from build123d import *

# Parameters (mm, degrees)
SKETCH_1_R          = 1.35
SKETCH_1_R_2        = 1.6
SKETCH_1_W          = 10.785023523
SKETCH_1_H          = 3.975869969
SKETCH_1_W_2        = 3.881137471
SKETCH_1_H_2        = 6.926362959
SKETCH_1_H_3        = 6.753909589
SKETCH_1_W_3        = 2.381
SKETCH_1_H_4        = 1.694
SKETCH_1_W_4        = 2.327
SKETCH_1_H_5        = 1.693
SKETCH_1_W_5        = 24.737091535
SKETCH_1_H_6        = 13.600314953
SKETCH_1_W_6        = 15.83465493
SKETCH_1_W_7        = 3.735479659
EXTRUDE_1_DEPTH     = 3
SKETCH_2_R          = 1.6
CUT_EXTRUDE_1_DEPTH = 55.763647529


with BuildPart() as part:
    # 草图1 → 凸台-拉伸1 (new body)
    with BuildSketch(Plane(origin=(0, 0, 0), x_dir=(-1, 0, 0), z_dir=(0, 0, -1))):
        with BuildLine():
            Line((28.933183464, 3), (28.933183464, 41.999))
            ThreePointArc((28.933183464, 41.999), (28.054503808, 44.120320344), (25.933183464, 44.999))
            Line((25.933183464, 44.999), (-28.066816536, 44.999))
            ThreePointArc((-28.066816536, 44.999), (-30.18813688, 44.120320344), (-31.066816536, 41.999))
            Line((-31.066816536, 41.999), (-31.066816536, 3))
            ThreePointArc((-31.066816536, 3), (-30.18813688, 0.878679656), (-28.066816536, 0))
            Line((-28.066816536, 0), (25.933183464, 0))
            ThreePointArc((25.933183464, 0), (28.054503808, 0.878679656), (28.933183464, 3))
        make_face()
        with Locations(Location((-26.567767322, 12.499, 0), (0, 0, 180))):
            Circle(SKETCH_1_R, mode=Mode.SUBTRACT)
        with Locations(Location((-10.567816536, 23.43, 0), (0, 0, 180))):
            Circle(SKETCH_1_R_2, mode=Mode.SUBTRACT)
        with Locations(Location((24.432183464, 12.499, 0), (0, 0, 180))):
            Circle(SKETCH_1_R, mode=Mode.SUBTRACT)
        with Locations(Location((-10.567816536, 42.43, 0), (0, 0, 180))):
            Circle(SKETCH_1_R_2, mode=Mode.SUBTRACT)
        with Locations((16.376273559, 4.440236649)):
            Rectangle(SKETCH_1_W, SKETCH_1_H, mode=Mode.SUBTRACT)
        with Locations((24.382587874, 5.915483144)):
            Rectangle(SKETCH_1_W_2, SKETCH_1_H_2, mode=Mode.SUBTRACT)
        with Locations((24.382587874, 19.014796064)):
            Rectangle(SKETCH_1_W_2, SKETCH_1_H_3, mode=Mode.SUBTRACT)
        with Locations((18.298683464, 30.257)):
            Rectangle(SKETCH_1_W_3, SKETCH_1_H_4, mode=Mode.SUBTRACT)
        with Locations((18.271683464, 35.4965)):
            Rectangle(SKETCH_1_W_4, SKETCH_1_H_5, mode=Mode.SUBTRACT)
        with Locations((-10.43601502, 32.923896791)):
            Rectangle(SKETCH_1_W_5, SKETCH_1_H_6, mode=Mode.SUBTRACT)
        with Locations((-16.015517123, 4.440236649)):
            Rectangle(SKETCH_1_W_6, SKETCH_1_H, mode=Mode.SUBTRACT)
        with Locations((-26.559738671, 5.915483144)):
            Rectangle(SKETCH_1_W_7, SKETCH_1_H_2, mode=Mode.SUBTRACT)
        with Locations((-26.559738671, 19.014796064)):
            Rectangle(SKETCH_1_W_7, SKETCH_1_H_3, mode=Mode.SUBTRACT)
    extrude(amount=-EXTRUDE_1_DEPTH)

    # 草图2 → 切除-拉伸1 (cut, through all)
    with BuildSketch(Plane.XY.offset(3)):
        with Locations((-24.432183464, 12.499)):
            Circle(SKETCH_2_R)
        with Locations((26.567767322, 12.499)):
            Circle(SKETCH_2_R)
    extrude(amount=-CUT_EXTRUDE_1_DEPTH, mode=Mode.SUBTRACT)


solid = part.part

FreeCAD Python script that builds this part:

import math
import FreeCAD as App
import Part
import Sketcher

V = App.Vector
Q = App.Units.Quantity

doc = App.newDocument("Part")
body = doc.addObject("PartDesign::Body", "Body")

# Sketch on XY plane
sketch1 = doc.addObject("Sketcher::SketchObject", "Sketch")
body.addObject(sketch1)
sketch1.AttachmentSupport = (doc.XY_Plane, [""])
sketch1.MapMode = "FlatFace"
sketch1.addGeometry(Part.LineSegment(V(-28.933183, 3, 0), V(-28.933183, 41.999, 0)), False)
sketch1.addGeometry(Part.ArcOfCircle(Part.Circle(V(-25.933183, 41.999, 0), V(0, 0, 1), 3), math.radians(90), math.radians(180)), False)
sketch1.addGeometry(Part.LineSegment(V(-25.933183, 44.999, 0), V(28.066817, 44.999, 0)), False)
sketch1.addGeometry(Part.ArcOfCircle(Part.Circle(V(28.066817, 41.999, 0), V(0, 0, 1), 3), math.radians(0), math.radians(90)), False)
sketch1.addGeometry(Part.LineSegment(V(31.066817, 41.999, 0), V(31.066817, 3, 0)), False)
sketch1.addGeometry(Part.ArcOfCircle(Part.Circle(V(28.066817, 3, 0), V(0, 0, 1), 3), math.radians(-90), math.radians(0)), False)
sketch1.addGeometry(Part.LineSegment(V(28.066817, 0, 0), V(-25.933183, 0, 0)), False)
sketch1.addGeometry(Part.ArcOfCircle(Part.Circle(V(-25.933183, 3, 0), V(0, 0, 1), 3), math.radians(180), math.radians(270)), False)
sketch1.addGeometry(Part.LineSegment(V(24.691999, 2.452302, 0), V(28.427479, 2.452302, 0)), False)
sketch1.addGeometry(Part.LineSegment(V(28.427479, 2.452302, 0), V(28.427479, 9.378665, 0)), False)
sketch1.addGeometry(Part.LineSegment(V(28.427479, 9.378665, 0), V(24.691999, 9.378665, 0)), False)
sketch1.addGeometry(Part.LineSegment(V(24.691999, 9.378665, 0), V(24.691999, 2.452302, 0)), False)
sketch1.addGeometry(Part.LineSegment(V(8.09819, 2.452302, 0), V(23.932845, 2.452302, 0)), False)
sketch1.addGeometry(Part.LineSegment(V(23.932845, 2.452302, 0), V(23.932845, 6.428172, 0)), False)
sketch1.addGeometry(Part.LineSegment(V(23.932845, 6.428172, 0), V(8.09819, 6.428172, 0)), False)
sketch1.addGeometry(Part.LineSegment(V(8.09819, 6.428172, 0), V(8.09819, 2.452302, 0)), False)
sketch1.addGeometry(Part.Circle(V(26.567767, 12.499, 0), V(0, 0, 1), 1.35), False)
sketch1.addGeometry(Part.LineSegment(V(24.691999, 15.637841, 0), V(28.427479, 15.637841, 0)), False)
sketch1.addGeometry(Part.LineSegment(V(28.427479, 15.637841, 0), V(28.427479, 22.391751, 0)), False)
sketch1.addGeometry(Part.LineSegment(V(28.427479, 22.391751, 0), V(24.691999, 22.391751, 0)), False)
sketch1.addGeometry(Part.LineSegment(V(24.691999, 22.391751, 0), V(24.691999, 15.637841, 0)), False)
sketch1.addGeometry(Part.LineSegment(V(-21.768785, 2.452302, 0), V(-10.983762, 2.452302, 0)), False)
sketch1.addGeometry(Part.LineSegment(V(-10.983762, 2.452302, 0), V(-10.983762, 6.428172, 0)), False)
sketch1.addGeometry(Part.LineSegment(V(-10.983762, 6.428172, 0), V(-21.768785, 6.428172, 0)), False)
sketch1.addGeometry(Part.LineSegment(V(-21.768785, 6.428172, 0), V(-21.768785, 2.452302, 0)), False)
sketch1.addGeometry(Part.LineSegment(V(-26.323157, 2.452302, 0), V(-22.442019, 2.452302, 0)), False)
sketch1.addGeometry(Part.LineSegment(V(-22.442019, 2.452302, 0), V(-22.442019, 9.378665, 0)), False)
sketch1.addGeometry(Part.LineSegment(V(-22.442019, 9.378665, 0), V(-26.323157, 9.378665, 0)), False)
sketch1.addGeometry(Part.LineSegment(V(-26.323157, 9.378665, 0), V(-26.323157, 2.452302, 0)), False)
sketch1.addGeometry(Part.Circle(V(-24.432183, 12.499, 0), V(0, 0, 1), 1.35), False)
sketch1.addGeometry(Part.LineSegment(V(-26.323157, 15.637841, 0), V(-22.442019, 15.637841, 0)), False)
sketch1.addGeometry(Part.LineSegment(V(-22.442019, 15.637841, 0), V(-22.442019, 22.391751, 0)), False)
sketch1.addGeometry(Part.LineSegment(V(-22.442019, 22.391751, 0), V(-26.323157, 22.391751, 0)), False)
sketch1.addGeometry(Part.LineSegment(V(-26.323157, 22.391751, 0), V(-26.323157, 15.637841, 0)), False)
sketch1.addGeometry(Part.Circle(V(10.567817, 23.43, 0), V(0, 0, 1), 1.6), False)
sketch1.addGeometry(Part.LineSegment(V(-1.932531, 26.123739, 0), V(22.804561, 26.123739, 0)), False)
sketch1.addGeometry(Part.LineSegment(V(22.804561, 26.123739, 0), V(22.804561, 39.724054, 0)), False)
sketch1.addGeometry(Part.LineSegment(V(22.804561, 39.724054, 0), V(-1.932531, 39.724054, 0)), False)
sketch1.addGeometry(Part.LineSegment(V(-1.932531, 39.724054, 0), V(-1.932531, 26.123739, 0)), False)
sketch1.addGeometry(Part.Circle(V(10.567817, 42.43, 0), V(0, 0, 1), 1.6), False)
sketch1.addGeometry(Part.LineSegment(V(-19.489183, 29.41, 0), V(-17.108183, 29.41, 0)), False)
sketch1.addGeometry(Part.LineSegment(V(-17.108183, 29.41, 0), V(-17.108183, 31.104, 0)), False)
sketch1.addGeometry(Part.LineSegment(V(-17.108183, 31.104, 0), V(-19.489183, 31.104, 0)), False)
sketch1.addGeometry(Part.LineSegment(V(-19.489183, 31.104, 0), V(-19.489183, 29.41, 0)), False)
sketch1.addGeometry(Part.LineSegment(V(-19.435183, 34.65, 0), V(-17.108183, 34.65, 0)), False)
sketch1.addGeometry(Part.LineSegment(V(-17.108183, 34.65, 0), V(-17.108183, 36.343, 0)), False)
sketch1.addGeometry(Part.LineSegment(V(-17.108183, 36.343, 0), V(-19.435183, 36.343, 0)), False)
sketch1.addGeometry(Part.LineSegment(V(-19.435183, 36.343, 0), V(-19.435183, 34.65, 0)), False)
sketch1.addConstraint(Sketcher.Constraint("Tangent", 0, 2, 1, 2))
sketch1.addConstraint(Sketcher.Constraint("Tangent", 1, 1, 2, 1))
sketch1.addConstraint(Sketcher.Constraint("Tangent", 2, 2, 3, 2))
sketch1.addConstraint(Sketcher.Constraint("Tangent", 3, 1, 4, 1))
sketch1.addConstraint(Sketcher.Constraint("Tangent", 4, 2, 5, 2))
sketch1.addConstraint(Sketcher.Constraint("Tangent", 5, 1, 6, 1))
sketch1.addConstraint(Sketcher.Constraint("Tangent", 6, 2, 7, 2))
sketch1.addConstraint(Sketcher.Constraint("Tangent", 7, 1, 0, 1))
sketch1.addConstraint(Sketcher.Constraint("Coincident", 8, 2, 9, 1))
sketch1.addConstraint(Sketcher.Constraint("Coincident", 9, 2, 10, 1))
sketch1.addConstraint(Sketcher.Constraint("Coincident", 10, 2, 11, 1))
sketch1.addConstraint(Sketcher.Constraint("Coincident", 11, 2, 8, 1))
sketch1.addConstraint(Sketcher.Constraint("Coincident", 12, 2, 13, 1))
sketch1.addConstraint(Sketcher.Constraint("Coincident", 13, 2, 14, 1))
sketch1.addConstraint(Sketcher.Constraint("Coincident", 14, 2, 15, 1))
sketch1.addConstraint(Sketcher.Constraint("Coincident", 15, 2, 12, 1))
sketch1.addConstraint(Sketcher.Constraint("Coincident", 17, 2, 18, 1))
sketch1.addConstraint(Sketcher.Constraint("Coincident", 18, 2, 19, 1))
sketch1.addConstraint(Sketcher.Constraint("Coincident", 19, 2, 20, 1))
sketch1.addConstraint(Sketcher.Constraint("Coincident", 20, 2, 17, 1))
sketch1.addConstraint(Sketcher.Constraint("Coincident", 21, 2, 22, 1))
sketch1.addConstraint(Sketcher.Constraint("Coincident", 22, 2, 23, 1))
sketch1.addConstraint(Sketcher.Constraint("Coincident", 23, 2, 24, 1))
sketch1.addConstraint(Sketcher.Constraint("Coincident", 24, 2, 21, 1))
sketch1.addConstraint(Sketcher.Constraint("Coincident", 25, 2, 26, 1))
sketch1.addConstraint(Sketcher.Constraint("Coincident", 26, 2, 27, 1))
sketch1.addConstraint(Sketcher.Constraint("Coincident", 27, 2, 28, 1))
sketch1.addConstraint(Sketcher.Constraint("Coincident", 28, 2, 25, 1))
sketch1.addConstraint(Sketcher.Constraint("Coincident", 30, 2, 31, 1))
sketch1.addConstraint(Sketcher.Constraint("Coincident", 31, 2, 32, 1))
sketch1.addConstraint(Sketcher.Constraint("Coincident", 32, 2, 33, 1))
sketch1.addConstraint(Sketcher.Constraint("Coincident", 33, 2, 30, 1))
sketch1.addConstraint(Sketcher.Constraint("Coincident", 35, 2, 36, 1))
sketch1.addConstraint(Sketcher.Constraint("Coincident", 36, 2, 37, 1))
sketch1.addConstraint(Sketcher.Constraint("Coincident", 37, 2, 38, 1))
sketch1.addConstraint(Sketcher.Constraint("Coincident", 38, 2, 35, 1))
sketch1.addConstraint(Sketcher.Constraint("Coincident", 40, 2, 41, 1))
sketch1.addConstraint(Sketcher.Constraint("Coincident", 41, 2, 42, 1))
sketch1.addConstraint(Sketcher.Constraint("Coincident", 42, 2, 43, 1))
sketch1.addConstraint(Sketcher.Constraint("Coincident", 43, 2, 40, 1))
sketch1.addConstraint(Sketcher.Constraint("Coincident", 44, 2, 45, 1))
sketch1.addConstraint(Sketcher.Constraint("Coincident", 45, 2, 46, 1))
sketch1.addConstraint(Sketcher.Constraint("Coincident", 46, 2, 47, 1))
sketch1.addConstraint(Sketcher.Constraint("Coincident", 47, 2, 44, 1))
sketch1.addConstraint(Sketcher.Constraint("Vertical", 0))
sketch1.addConstraint(Sketcher.Constraint("Horizontal", 2))
sketch1.addConstraint(Sketcher.Constraint("Vertical", 4))
sketch1.addConstraint(Sketcher.Constraint("Horizontal", 6))
sketch1.addConstraint(Sketcher.Constraint("Horizontal", 8))
sketch1.addConstraint(Sketcher.Constraint("Vertical", 9))
sketch1.addConstraint(Sketcher.Constraint("Horizontal", 10))
sketch1.addConstraint(Sketcher.Constraint("Vertical", 11))
sketch1.addConstraint(Sketcher.Constraint("Horizontal", 12))
sketch1.addConstraint(Sketcher.Constraint("Vertical", 13))
sketch1.addConstraint(Sketcher.Constraint("Horizontal", 14))
sketch1.addConstraint(Sketcher.Constraint("Vertical", 15))
sketch1.addConstraint(Sketcher.Constraint("Horizontal", 17))
sketch1.addConstraint(Sketcher.Constraint("Vertical", 18))
sketch1.addConstraint(Sketcher.Constraint("Horizontal", 19))
sketch1.addConstraint(Sketcher.Constraint("Vertical", 20))
sketch1.addConstraint(Sketcher.Constraint("Horizontal", 21))
sketch1.addConstraint(Sketcher.Constraint("Vertical", 22))
sketch1.addConstraint(Sketcher.Constraint("Horizontal", 23))
sketch1.addConstraint(Sketcher.Constraint("Vertical", 24))
sketch1.addConstraint(Sketcher.Constraint("Horizontal", 25))
sketch1.addConstraint(Sketcher.Constraint("Vertical", 26))
sketch1.addConstraint(Sketcher.Constraint("Horizontal", 27))
sketch1.addConstraint(Sketcher.Constraint("Vertical", 28))
sketch1.addConstraint(Sketcher.Constraint("Horizontal", 30))
sketch1.addConstraint(Sketcher.Constraint("Vertical", 31))
sketch1.addConstraint(Sketcher.Constraint("Horizontal", 32))
sketch1.addConstraint(Sketcher.Constraint("Vertical", 33))
sketch1.addConstraint(Sketcher.Constraint("Horizontal", 35))
sketch1.addConstraint(Sketcher.Constraint("Vertical", 36))
sketch1.addConstraint(Sketcher.Constraint("Horizontal", 37))
sketch1.addConstraint(Sketcher.Constraint("Vertical", 38))
sketch1.addConstraint(Sketcher.Constraint("Horizontal", 40))
sketch1.addConstraint(Sketcher.Constraint("Vertical", 41))
sketch1.addConstraint(Sketcher.Constraint("Horizontal", 42))
sketch1.addConstraint(Sketcher.Constraint("Vertical", 43))
sketch1.addConstraint(Sketcher.Constraint("Horizontal", 44))
sketch1.addConstraint(Sketcher.Constraint("Vertical", 45))
sketch1.addConstraint(Sketcher.Constraint("Horizontal", 46))
sketch1.addConstraint(Sketcher.Constraint("Vertical", 47))
sketch1.addConstraint(Sketcher.Constraint("Equal", 1, 3))
sketch1.addConstraint(Sketcher.Constraint("Equal", 3, 5))
sketch1.addConstraint(Sketcher.Constraint("Equal", 5, 7))
sketch1.addConstraint(Sketcher.Constraint("Equal", 16, 29))
sketch1.addConstraint(Sketcher.Constraint("Equal", 34, 39))
sketch1.addConstraint(Sketcher.Constraint("PointOnObject", 5, 1, -1))
sketch1.addConstraint(Sketcher.Constraint("Horizontal", 16, 3, 29, 3))
sketch1.addConstraint(Sketcher.Constraint("Horizontal", 11, 2, 12, 2))
sketch1.addConstraint(Sketcher.Constraint("Horizontal", 15, 2, 21, 2))
sketch1.addConstraint(Sketcher.Constraint("Horizontal", 14, 2, 22, 2))
sketch1.addConstraint(Sketcher.Constraint("Horizontal", 24, 2, 25, 2))
sketch1.addConstraint(Sketcher.Constraint("Horizontal", 10, 2, 26, 2))
sketch1.addConstraint(Sketcher.Constraint("Horizontal", 20, 2, 30, 2))
sketch1.addConstraint(Sketcher.Constraint("Horizontal", 19, 2, 31, 2))
sketch1.addConstraint(Sketcher.Constraint("Vertical", 34, 3, 39, 3))
sketch1.addConstraint(Sketcher.Constraint("Vertical", 9, 2, 17, 2))
sketch1.addConstraint(Sketcher.Constraint("Vertical", 11, 2, 19, 2))
sketch1.addConstraint(Sketcher.Constraint("Vertical", 26, 2, 30, 2))
sketch1.addConstraint(Sketcher.Constraint("Vertical", 28, 2, 32, 2))
sketch1.addConstraint(Sketcher.Constraint("Vertical", 41, 2, 44, 2))
sketch1.addConstraint(Sketcher.Constraint("Radius", 1, Q("3 mm")))
sketch1.addConstraint(Sketcher.Constraint("Diameter", 16, Q("2.7 mm")))
sketch1.addConstraint(Sketcher.Constraint("Diameter", 34, Q("3.2 mm")))
sketch1.addConstraint(Sketcher.Constraint("DistanceX", 2, 1, 2, 2, Q("54 mm")))
sketch1.addConstraint(Sketcher.Constraint("DistanceX", 29, 3, 34, 3, Q("35 mm")))
sketch1.addConstraint(Sketcher.Constraint("DistanceY", 34, 3, 39, 3, Q("19 mm")))
sketch1.addConstraint(Sketcher.Constraint("DistanceY", 16, 3, 3, 3, Q("29.5 mm")))
sketch1.addConstraint(Sketcher.Constraint("DistanceX", 40, 1, 40, 2, Q("2.381 mm")))
sketch1.addConstraint(Sketcher.Constraint("DistanceX", 44, 1, 44, 2, Q("2.327 mm")))
sketch1.addConstraint(Sketcher.Constraint("DistanceY", 0, 1, 0, 2, Q("38.999 mm")))
sketch1.addConstraint(Sketcher.Constraint("DistanceY", 41, 1, 41, 2, Q("1.694 mm")))
sketch1.addConstraint(Sketcher.Constraint("DistanceY", 45, 1, 45, 2, Q("1.693 mm")))
sketch1.addConstraint(Sketcher.Constraint("DistanceY", -1, 1, 34, 3, Q("23.43 mm")))
sketch1.addConstraint(Sketcher.Constraint("DistanceY", -1, 1, 40, 2, Q("29.41 mm")))
sketch1.addConstraint(Sketcher.Constraint("DistanceY", -1, 1, 44, 2, Q("34.65 mm")))
sketch1.addConstraint(Sketcher.Constraint("DistanceX", -1, 1, 10, 2, Q("24.691999 mm")))
sketch1.addConstraint(Sketcher.Constraint("DistanceX", 7, 3, 29, 3, Q("1.501 mm")))
sketch1.addConstraint(Sketcher.Constraint("DistanceX", 1, 3, 40, 2, Q("8.825 mm")))
sketch1.addConstraint(Sketcher.Constraint("DistanceX", 8, 1, 8, 2, Q("3.73548 mm")))
sketch1.addConstraint(Sketcher.Constraint("DistanceX", 35, 1, 35, 2, Q("24.737092 mm")))
sketch1.addConstraint(Sketcher.Constraint("DistanceY", 13, 1, 13, 2, Q("3.97587 mm")))
sketch1.addConstraint(Sketcher.Constraint("DistanceY", 18, 1, 18, 2, Q("6.75391 mm")))
sketch1.addConstraint(Sketcher.Constraint("DistanceY", -1, 1, 8, 2, Q("2.452302 mm")))
sketch1.addConstraint(Sketcher.Constraint("DistanceX", 7, 3, 23, 2, Q("4.164398 mm")))
sketch1.addConstraint(Sketcher.Constraint("DistanceY", 20, 2, 35, 2, Q("10.485898 mm")))
sketch1.addConstraint(Sketcher.Constraint("DistanceX", 12, 1, 12, 2, Q("15.834655 mm")))
sketch1.addConstraint(Sketcher.Constraint("DistanceX", 21, 1, 21, 2, Q("10.785024 mm")))
sketch1.addConstraint(Sketcher.Constraint("DistanceX", 25, 1, 25, 2, Q("3.881137 mm")))
sketch1.addConstraint(Sketcher.Constraint("DistanceY", 9, 1, 9, 2, Q("6.926363 mm")))
sketch1.addConstraint(Sketcher.Constraint("DistanceY", 36, 1, 36, 2, Q("13.600315 mm")))
sketch1.addConstraint(Sketcher.Constraint("DistanceX", -1, 1, 14, 2, Q("8.09819 mm")))
sketch1.addConstraint(Sketcher.Constraint("DistanceY", -1, 1, 17, 2, Q("15.637841 mm")))
sketch1.addConstraint(Sketcher.Constraint("DistanceX", 21, 2, -1, 1, Q("10.983762 mm")))
sketch1.addConstraint(Sketcher.Constraint("DistanceX", 25, 2, -1, 1, Q("22.442019 mm")))
sketch1.addConstraint(Sketcher.Constraint("DistanceX", -1, 1, 35, 2, Q("22.804561 mm")))
sketch1.addConstraint(Sketcher.Constraint("DistanceX", 16, 3, 5, 3, Q("1.499049 mm")))
pad1 = doc.addObject("PartDesign::Pad", "Pad")
body.addObject(pad1)
pad1.Profile = sketch1
pad1.Length = 3

# Sketch on XY plane
sketch2 = doc.addObject("Sketcher::SketchObject", "Sketch001")
body.addObject(sketch2)
sketch2.AttachmentSupport = (doc.XY_Plane, [""])
sketch2.MapMode = "FlatFace"
sketch2.AttachmentOffset = App.Placement(V(0, 0, 3), App.Rotation())
sketch2.addGeometry(Part.Circle(V(-24.432183, 12.499, 0), V(0, 0, 1), 1.6), False)
sketch2.addGeometry(Part.Circle(V(26.567767, 12.499, 0), V(0, 0, 1), 1.6), False)
sketch2.addConstraint(Sketcher.Constraint("Equal", 0, 1))
sketch2.addConstraint(Sketcher.Constraint("Horizontal", 0, 3, 1, 3))
sketch2.addConstraint(Sketcher.Constraint("Diameter", 0, Q("3.2 mm")))
sketch2.addConstraint(Sketcher.Constraint("DistanceY", -1, 1, 0, 3, Q("12.499 mm")))
sketch2.addConstraint(Sketcher.Constraint("DistanceX", 0, 3, 1, 3, Q("50.999951 mm")))
sketch2.addConstraint(Sketcher.Constraint("DistanceX", 0, 3, -1, 1, Q("24.432183 mm")))
pocket1 = doc.addObject("PartDesign::Pocket", "Pocket")
body.addObject(pocket1)
pocket1.Profile = sketch2
pocket1.Type = "ThroughAll"

doc.recompute()
